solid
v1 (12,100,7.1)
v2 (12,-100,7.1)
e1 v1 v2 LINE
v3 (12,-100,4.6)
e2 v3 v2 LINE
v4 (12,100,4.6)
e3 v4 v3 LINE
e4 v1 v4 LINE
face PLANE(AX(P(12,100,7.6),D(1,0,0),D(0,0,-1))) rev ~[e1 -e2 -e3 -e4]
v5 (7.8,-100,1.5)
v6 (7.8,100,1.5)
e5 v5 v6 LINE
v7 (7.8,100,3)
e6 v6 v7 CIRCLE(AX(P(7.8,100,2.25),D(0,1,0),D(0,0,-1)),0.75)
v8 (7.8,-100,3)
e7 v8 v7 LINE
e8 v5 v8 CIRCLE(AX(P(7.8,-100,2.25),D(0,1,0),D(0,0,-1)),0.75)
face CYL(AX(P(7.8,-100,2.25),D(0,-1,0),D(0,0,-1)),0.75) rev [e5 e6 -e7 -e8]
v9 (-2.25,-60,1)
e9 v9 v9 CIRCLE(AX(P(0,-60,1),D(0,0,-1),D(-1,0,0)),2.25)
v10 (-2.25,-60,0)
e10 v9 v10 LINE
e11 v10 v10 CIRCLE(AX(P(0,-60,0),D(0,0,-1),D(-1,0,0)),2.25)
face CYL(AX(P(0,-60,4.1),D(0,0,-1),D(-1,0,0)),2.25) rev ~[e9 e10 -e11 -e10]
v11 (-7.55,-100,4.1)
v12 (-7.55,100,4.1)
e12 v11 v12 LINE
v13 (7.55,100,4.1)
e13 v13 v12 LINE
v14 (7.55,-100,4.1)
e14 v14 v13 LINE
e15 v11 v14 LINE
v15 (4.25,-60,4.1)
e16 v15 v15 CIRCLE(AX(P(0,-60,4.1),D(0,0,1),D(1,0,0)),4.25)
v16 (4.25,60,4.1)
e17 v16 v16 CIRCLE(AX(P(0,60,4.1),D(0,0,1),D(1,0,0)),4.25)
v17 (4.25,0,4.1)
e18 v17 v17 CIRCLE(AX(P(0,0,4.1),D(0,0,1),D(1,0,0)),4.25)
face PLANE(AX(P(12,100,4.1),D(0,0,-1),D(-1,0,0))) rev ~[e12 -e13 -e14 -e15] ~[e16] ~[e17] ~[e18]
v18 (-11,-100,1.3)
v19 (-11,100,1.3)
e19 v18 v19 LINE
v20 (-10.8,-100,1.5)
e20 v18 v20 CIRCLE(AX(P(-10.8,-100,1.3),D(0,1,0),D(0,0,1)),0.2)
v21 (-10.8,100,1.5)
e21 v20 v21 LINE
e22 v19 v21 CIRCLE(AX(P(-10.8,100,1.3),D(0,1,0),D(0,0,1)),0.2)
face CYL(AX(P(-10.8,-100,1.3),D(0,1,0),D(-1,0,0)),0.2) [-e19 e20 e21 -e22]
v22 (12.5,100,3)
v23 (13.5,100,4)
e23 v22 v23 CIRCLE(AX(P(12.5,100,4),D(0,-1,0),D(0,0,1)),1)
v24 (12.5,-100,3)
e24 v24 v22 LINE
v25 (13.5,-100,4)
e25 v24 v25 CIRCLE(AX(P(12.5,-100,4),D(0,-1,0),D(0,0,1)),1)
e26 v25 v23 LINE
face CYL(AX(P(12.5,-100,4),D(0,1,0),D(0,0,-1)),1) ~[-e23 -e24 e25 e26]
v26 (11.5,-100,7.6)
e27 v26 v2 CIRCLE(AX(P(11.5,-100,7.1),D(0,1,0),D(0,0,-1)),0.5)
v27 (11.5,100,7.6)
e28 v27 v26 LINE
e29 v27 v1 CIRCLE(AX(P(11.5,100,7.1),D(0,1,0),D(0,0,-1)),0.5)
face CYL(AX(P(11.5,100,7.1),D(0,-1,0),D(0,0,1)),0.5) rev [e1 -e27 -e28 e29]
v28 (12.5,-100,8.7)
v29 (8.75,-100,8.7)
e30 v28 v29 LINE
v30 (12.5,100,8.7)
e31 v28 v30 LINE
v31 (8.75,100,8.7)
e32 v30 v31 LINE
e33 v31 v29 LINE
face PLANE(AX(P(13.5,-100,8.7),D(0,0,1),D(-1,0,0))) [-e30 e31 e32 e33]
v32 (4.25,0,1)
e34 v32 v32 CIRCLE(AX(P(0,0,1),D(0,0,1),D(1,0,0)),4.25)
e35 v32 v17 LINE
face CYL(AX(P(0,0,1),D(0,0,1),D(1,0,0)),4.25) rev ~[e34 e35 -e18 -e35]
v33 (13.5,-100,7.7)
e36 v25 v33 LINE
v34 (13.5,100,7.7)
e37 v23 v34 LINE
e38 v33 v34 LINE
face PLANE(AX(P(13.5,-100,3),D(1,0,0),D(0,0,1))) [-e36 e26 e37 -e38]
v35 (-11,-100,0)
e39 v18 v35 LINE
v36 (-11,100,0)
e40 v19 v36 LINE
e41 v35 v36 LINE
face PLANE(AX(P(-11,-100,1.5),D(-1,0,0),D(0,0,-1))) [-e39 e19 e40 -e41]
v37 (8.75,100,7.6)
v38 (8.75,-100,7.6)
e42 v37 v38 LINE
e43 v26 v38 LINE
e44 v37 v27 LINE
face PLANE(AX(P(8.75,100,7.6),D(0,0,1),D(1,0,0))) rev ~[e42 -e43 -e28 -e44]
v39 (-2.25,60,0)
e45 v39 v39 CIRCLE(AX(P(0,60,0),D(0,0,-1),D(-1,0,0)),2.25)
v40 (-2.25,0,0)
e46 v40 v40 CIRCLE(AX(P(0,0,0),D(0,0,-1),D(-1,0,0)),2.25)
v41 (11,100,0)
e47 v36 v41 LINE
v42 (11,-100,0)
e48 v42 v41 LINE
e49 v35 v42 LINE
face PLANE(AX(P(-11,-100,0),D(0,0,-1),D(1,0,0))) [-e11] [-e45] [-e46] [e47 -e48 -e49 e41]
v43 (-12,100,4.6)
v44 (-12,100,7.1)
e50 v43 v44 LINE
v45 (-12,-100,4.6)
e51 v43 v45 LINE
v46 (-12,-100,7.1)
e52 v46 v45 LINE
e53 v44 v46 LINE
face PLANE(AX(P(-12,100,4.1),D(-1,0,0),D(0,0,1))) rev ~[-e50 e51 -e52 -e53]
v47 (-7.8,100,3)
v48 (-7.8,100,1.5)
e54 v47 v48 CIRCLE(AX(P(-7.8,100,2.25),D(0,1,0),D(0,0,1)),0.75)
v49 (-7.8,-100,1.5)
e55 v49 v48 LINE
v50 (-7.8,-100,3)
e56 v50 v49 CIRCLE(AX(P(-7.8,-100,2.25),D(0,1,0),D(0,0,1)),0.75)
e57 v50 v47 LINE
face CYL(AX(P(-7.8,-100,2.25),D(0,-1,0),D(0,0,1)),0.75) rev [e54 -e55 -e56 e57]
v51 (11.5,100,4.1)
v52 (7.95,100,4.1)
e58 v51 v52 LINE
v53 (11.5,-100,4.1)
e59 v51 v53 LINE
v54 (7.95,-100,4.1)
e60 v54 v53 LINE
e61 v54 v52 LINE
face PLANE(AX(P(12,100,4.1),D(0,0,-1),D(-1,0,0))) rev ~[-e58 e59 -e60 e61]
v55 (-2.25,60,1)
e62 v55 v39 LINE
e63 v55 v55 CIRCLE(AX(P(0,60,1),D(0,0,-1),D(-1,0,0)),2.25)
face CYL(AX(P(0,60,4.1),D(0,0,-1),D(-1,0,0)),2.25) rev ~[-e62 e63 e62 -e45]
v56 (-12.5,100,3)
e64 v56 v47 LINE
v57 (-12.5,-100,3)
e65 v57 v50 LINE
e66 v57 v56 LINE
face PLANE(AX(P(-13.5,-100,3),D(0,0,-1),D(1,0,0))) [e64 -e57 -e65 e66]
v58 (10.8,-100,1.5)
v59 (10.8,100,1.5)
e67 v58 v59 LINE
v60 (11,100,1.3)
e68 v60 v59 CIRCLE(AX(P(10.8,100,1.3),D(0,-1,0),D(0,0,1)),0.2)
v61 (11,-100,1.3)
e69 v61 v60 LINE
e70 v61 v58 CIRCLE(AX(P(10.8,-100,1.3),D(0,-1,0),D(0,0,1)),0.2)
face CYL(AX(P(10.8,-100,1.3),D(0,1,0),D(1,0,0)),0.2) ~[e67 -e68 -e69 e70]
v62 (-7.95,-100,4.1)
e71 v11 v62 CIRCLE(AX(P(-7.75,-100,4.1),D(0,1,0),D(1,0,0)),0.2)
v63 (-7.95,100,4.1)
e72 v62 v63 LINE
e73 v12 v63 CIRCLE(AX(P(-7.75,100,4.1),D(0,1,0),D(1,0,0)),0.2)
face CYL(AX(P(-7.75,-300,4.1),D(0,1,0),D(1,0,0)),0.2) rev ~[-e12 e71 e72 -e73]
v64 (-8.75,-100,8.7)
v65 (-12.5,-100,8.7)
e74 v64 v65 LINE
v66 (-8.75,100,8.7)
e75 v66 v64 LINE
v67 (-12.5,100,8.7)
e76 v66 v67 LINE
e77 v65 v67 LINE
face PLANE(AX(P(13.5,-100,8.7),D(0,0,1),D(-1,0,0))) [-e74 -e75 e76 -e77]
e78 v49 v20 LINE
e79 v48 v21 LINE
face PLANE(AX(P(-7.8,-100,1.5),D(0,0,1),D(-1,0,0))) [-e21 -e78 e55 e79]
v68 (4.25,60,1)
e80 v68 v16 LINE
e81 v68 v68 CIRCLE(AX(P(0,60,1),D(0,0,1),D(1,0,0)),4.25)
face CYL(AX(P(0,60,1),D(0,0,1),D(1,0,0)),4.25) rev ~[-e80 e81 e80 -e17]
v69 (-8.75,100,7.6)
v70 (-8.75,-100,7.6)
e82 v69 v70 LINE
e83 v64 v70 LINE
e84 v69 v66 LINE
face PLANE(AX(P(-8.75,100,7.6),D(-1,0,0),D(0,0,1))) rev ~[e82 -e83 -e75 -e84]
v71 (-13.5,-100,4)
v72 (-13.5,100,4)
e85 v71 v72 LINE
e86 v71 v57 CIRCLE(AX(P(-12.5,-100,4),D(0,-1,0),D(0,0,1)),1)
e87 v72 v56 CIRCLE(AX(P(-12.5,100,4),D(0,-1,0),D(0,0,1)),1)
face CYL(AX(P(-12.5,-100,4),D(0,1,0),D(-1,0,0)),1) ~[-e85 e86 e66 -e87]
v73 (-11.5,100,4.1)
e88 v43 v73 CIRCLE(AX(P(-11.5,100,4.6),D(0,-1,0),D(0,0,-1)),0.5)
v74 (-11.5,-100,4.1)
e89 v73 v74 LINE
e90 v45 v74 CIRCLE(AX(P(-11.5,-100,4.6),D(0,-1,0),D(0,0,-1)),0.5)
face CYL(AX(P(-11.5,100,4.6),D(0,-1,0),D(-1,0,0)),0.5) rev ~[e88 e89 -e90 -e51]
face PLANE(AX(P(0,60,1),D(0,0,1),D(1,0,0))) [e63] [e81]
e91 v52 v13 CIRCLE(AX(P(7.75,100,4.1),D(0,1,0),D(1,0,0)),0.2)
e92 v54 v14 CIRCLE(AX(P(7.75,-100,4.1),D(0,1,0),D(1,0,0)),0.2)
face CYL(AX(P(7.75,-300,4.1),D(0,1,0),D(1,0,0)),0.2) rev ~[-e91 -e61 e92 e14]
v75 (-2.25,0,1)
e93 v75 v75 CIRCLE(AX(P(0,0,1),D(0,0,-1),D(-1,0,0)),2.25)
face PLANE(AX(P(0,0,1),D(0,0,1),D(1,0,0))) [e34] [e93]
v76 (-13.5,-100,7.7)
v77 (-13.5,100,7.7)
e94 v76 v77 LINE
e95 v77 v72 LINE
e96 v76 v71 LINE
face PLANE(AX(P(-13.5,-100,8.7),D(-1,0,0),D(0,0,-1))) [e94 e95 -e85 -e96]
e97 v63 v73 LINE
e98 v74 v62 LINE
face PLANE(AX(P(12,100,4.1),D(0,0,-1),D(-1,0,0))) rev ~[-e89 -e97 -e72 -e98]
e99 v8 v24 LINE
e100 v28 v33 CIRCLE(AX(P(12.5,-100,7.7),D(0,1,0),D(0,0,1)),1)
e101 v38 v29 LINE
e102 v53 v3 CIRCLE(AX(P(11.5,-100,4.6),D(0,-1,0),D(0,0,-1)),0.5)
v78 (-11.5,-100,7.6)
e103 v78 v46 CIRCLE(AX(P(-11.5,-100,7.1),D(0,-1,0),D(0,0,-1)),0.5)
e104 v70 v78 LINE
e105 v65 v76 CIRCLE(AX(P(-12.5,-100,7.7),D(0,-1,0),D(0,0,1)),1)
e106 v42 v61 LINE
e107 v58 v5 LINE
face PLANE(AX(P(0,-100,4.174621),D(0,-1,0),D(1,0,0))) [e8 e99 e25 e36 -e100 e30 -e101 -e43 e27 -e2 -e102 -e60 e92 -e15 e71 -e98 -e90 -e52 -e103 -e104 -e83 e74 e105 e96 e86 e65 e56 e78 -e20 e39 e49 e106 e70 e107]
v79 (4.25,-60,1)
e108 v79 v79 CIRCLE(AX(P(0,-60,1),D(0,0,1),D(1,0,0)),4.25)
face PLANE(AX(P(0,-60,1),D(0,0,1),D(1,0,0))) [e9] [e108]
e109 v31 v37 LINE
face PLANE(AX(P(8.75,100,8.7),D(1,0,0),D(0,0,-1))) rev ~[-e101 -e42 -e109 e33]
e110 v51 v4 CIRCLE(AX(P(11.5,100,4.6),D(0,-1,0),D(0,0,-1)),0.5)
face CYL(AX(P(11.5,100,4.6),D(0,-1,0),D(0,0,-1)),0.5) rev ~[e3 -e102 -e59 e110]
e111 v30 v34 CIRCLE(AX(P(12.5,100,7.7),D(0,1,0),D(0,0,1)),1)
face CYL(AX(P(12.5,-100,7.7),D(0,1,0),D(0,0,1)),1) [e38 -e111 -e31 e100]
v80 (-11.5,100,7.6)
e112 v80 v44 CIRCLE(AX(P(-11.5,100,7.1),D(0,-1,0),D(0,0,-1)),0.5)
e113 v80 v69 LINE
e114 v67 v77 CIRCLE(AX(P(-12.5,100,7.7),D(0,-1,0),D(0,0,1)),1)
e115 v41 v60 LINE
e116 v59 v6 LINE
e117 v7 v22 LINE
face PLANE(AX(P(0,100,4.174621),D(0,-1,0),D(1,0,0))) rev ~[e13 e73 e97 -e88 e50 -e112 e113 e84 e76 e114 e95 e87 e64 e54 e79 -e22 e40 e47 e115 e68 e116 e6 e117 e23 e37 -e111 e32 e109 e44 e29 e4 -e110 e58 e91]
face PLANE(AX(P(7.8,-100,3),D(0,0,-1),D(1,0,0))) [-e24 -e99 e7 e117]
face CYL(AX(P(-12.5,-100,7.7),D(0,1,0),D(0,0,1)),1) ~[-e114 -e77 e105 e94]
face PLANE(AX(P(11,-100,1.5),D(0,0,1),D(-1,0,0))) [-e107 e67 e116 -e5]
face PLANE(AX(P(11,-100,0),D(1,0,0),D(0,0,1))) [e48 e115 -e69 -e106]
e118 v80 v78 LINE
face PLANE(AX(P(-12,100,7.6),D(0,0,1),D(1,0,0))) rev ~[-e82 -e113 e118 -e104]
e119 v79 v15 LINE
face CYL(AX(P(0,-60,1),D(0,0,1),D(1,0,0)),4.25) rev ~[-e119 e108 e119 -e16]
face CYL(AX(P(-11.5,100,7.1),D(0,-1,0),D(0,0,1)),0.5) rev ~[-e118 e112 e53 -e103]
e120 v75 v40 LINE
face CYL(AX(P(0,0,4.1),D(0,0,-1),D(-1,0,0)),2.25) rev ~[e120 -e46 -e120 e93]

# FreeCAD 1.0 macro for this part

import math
import FreeCAD as App
import Part
import Sketcher
from FreeCAD import Vector
Q = App.Units.Quantity


def edges_at(feature, points):
    """Names of the edges that pass closest to the given points."""
    edges = feature.Shape.Edges
    near = lambda p: min(range(len(edges)), key=lambda i: edges[i].distToShape(Part.Vertex(*p))[0])
    return sorted({f"Edge{near(p) + 1}" for p in points})

doc = App.newDocument("Part")
body = doc.addObject("PartDesign::Body", "Body")

# Sketch on XZ plane
sketch1 = body.newObject("Sketcher::SketchObject", "Sketch")
sketch1.AttachmentSupport = (doc.getObject("XZ_Plane"), [""])
sketch1.MapMode = "FlatFace"
sketch1.AttachmentOffset = App.Placement(Vector(0, 0, 100), App.Rotation())
sketch1.addGeometry([
    Part.LineSegment(Vector(-11, 0, 0), Vector(11, 0, 0)),  # 0
    Part.LineSegment(Vector(11, 0, 0), Vector(11, 1.5, 0)),  # 1
    Part.LineSegment(Vector(11, 1.5, 0), Vector(7.8, 1.5, 0)),  # 2
    Part.ArcOfCircle(Part.Circle(Vector(7.8, 2.2, 0), Vector(0, 0, 1), 0.8), math.radians(90), math.radians(270)),  # 3
    Part.LineSegment(Vector(7.8, 3, 0), Vector(13.5, 3, 0)),  # 4
    Part.LineSegment(Vector(13.5, 3, 0), Vector(13.5, 8.7, 0)),  # 5
    Part.LineSegment(Vector(13.5, 8.7, 0), Vector(-13.5, 8.7, 0)),  # 6
    Part.LineSegment(Vector(-13.5, 8.7, 0), Vector(-13.5, 3, 0)),  # 7
    Part.LineSegment(Vector(-13.5, 3, 0), Vector(-7.8, 3, 0)),  # 8
    Part.ArcOfCircle(Part.Circle(Vector(-7.8, 2.2, 0), Vector(0, 0, 1), 0.8), math.radians(-90), math.radians(90)),  # 9
    Part.LineSegment(Vector(-7.8, 1.5, 0), Vector(-11, 1.5, 0)),  # 10
    Part.LineSegment(Vector(-11, 1.5, 0), Vector(-11, 0, 0)),  # 11
], False)
sketch1.addConstraint([
    Sketcher.Constraint("Coincident", 0, 2, 1, 1),
    Sketcher.Constraint("Coincident", 1, 2, 2, 1),
    Sketcher.Constraint("Tangent", 2, 2, 3, 2),
    Sketcher.Constraint("Tangent", 3, 1, 4, 1),
    Sketcher.Constraint("Coincident", 4, 2, 5, 1),
    Sketcher.Constraint("Coincident", 5, 2, 6, 1),
    Sketcher.Constraint("Coincident", 6, 2, 7, 1),
    Sketcher.Constraint("Coincident", 7, 2, 8, 1),
    Sketcher.Constraint("Tangent", 8, 2, 9, 2),
    Sketcher.Constraint("Tangent", 9, 1, 10, 1),
    Sketcher.Constraint("Coincident", 10, 2, 11, 1),
    Sketcher.Constraint("Coincident", 11, 2, 0, 1),
    Sketcher.Constraint("Horizontal", 0),
    Sketcher.Constraint("Vertical", 1),
    Sketcher.Constraint("Horizontal", 2),
    Sketcher.Constraint("Horizontal", 4),
    Sketcher.Constraint("Vertical", 5),
    Sketcher.Constraint("Horizontal", 6),
    Sketcher.Constraint("Vertical", 7),
    Sketcher.Constraint("Horizontal", 8),
    Sketcher.Constraint("Horizontal", 10),
    Sketcher.Constraint("Vertical", 11),
    Sketcher.Constraint("Equal", 3, 9),
    Sketcher.Constraint("Symmetric", 0, 2, 11, 2, -1, 1),
    Sketcher.Constraint("Symmetric", 3, 3, 9, 3, -2),
    Sketcher.Constraint("Equal", 4, 8),
    Sketcher.Constraint("Equal", 8, 5),
    Sketcher.Constraint("DistanceX", 0, 1, 0, 2, Q("22 mm")),
    Sketcher.Constraint("DistanceX", 6, 2, 6, 1, Q("27 mm")),
    Sketcher.Constraint("Radius", 3, Q("0.75 mm")),
    Sketcher.Constraint("DistanceX", 2, 2, 2, 1, Q("3.2 mm")),
    Sketcher.Constraint("DistanceY", 1, 1, 1, 2, Q("1.5 mm")),
])
pad1 = body.newObject("PartDesign::Pad", "Pad")
pad1.Profile = sketch1
pad1.Length = 200
pad1.Reversed = True

# Sketch on XZ plane
sketch2 = body.newObject("Sketcher::SketchObject", "Sketch001")
sketch2.AttachmentSupport = (doc.getObject("XZ_Plane"), [""])
sketch2.MapMode = "FlatFace"
sketch2.AttachmentOffset = App.Placement(Vector(0, 0, -100), App.Rotation())
sketch2.addGeometry([
    Part.LineSegment(Vector(-8.8, 8.7, 0), Vector(8.8, 8.7, 0)),  # 0
    Part.LineSegment(Vector(8.8, 8.7, 0), Vector(8.8, 7.6, 0)),  # 1
    Part.LineSegment(Vector(8.8, 7.6, 0), Vector(12, 7.6, 0)),  # 2
    Part.LineSegment(Vector(12, 7.6, 0), Vector(12, 4.1, 0)),  # 3
    Part.LineSegment(Vector(12, 4.1, 0), Vector(-12, 4.1, 0)),  # 4
    Part.LineSegment(Vector(-12, 4.1, 0), Vector(-12, 7.6, 0)),  # 5
    Part.LineSegment(Vector(-12, 7.6, 0), Vector(-8.8, 7.6, 0)),  # 6
    Part.LineSegment(Vector(-8.8, 7.6, 0), Vector(-8.8, 8.7, 0)),  # 7
], False)
sketch2.addConstraint([
    Sketcher.Constraint("Coincident", 0, 2, 1, 1),
    Sketcher.Constraint("Coincident", 1, 2, 2, 1),
    Sketcher.Constraint("Coincident", 2, 2, 3, 1),
    Sketcher.Constraint("Coincident", 3, 2, 4, 1),
    Sketcher.Constraint("Coincident", 4, 2, 5, 1),
    Sketcher.Constraint("Coincident", 5, 2, 6, 1),
    Sketcher.Constraint("Coincident", 6, 2, 7, 1),
    Sketcher.Constraint("Coincident", 7, 2, 0, 1),
    Sketcher.Constraint("Horizontal", 0),
    Sketcher.Constraint("Vertical", 1),
    Sketcher.Constraint("Horizontal", 2),
    Sketcher.Constraint("Vertical", 3),
    Sketcher.Constraint("Horizontal", 4),
    Sketcher.Constraint("Vertical", 5),
    Sketcher.Constraint("Horizontal", 6),
    Sketcher.Constraint("Vertical", 7),
    Sketcher.Constraint("Symmetric", 2, 2, 5, 2, -2),
    Sketcher.Constraint("Equal", 2, 6),
    Sketcher.Constraint("DistanceX", 4, 2, 4, 1, Q("24 mm")),
    Sketcher.Constraint("DistanceX", 0, 1, 0, 2, Q("17.5 mm")),
    Sketcher.Constraint("DistanceY", 1, 2, 1, 1, Q("1.1 mm")),
    Sketcher.Constraint("DistanceY", 3, 2, 3, 1, Q("3.5 mm")),
    Sketcher.Constraint("DistanceY", -1, 1, 0, 2, Q("8.7 mm")),
])
pocket1 = body.newObject("PartDesign::Pocket", "Pocket")
pocket1.Profile = sketch2
pocket1.Type = "ThroughAll"
pocket1.Reversed = True

# Sketch on XZ plane
sketch3 = body.newObject("Sketcher::SketchObject", "Sketch002")
sketch3.AttachmentSupport = (doc.getObject("XZ_Plane"), [""])
sketch3.MapMode = "FlatFace"
sketch3.AttachmentOffset = App.Placement(Vector(0, 0, 100), App.Rotation())
sketch3.addGeometry([
    Part.Circle(Vector(7.75, 4.1, 0), Vector(0, 0, 1), 0.2),
    Part.Circle(Vector(-7.75, 4.1, 0), Vector(0, 0, 1), 0.2),
], False)
sketch3.addConstraint([
    Sketcher.Constraint("Equal", 0, 1),
    Sketcher.Constraint("Symmetric", 0, 3, 1, 3, -2),
    Sketcher.Constraint("Diameter", 0, Q("0.4 mm")),
    Sketcher.Constraint("DistanceY", -1, 1, 0, 3, Q("4.1 mm")),
    Sketcher.Constraint("DistanceX", 1, 3, 0, 3, Q("15.5 mm")),
])
doc.recompute()
hole = body.newObject("PartDesign::Hole", "Hole")
hole.Profile = sketch3
hole.ThreadType = "None"
hole.Diameter = 0.4
hole.DepthType = "Dimension"
hole.Depth = 200
hole.DrillPoint = "Flat"

# Sketch on XY plane
sketch4 = body.newObject("Sketcher::SketchObject", "Sketch003")
sketch4.AttachmentSupport = (doc.getObject("XY_Plane"), [""])
sketch4.MapMode = "FlatFace"
sketch4.AttachmentOffset = App.Placement(Vector(0, 0, 4.1), App.Rotation())
sketch4.addGeometry([
    Part.Circle(Vector(0, -60, 0), Vector(0, 0, 1), 2.2),
    Part.Circle(Vector(0, 0, 0), Vector(0, 0, 1), 2.2),
    Part.Circle(Vector(0, 60, 0), Vector(0, 0, 1), 2.2),
], False)
sketch4.addConstraint([
    Sketcher.Constraint("Coincident", 1, 3, -1, 1),
    Sketcher.Constraint("Equal", 0, 1),
    Sketcher.Constraint("Equal", 1, 2),
    Sketcher.Constraint("Symmetric", 0, 3, 2, 3, -1, 1),
    Sketcher.Constraint("PointOnObject", 0, 3, -2),
    Sketcher.Constraint("Diameter", 0, Q("4.5 mm")),
    Sketcher.Constraint("DistanceY", 0, 3, -1, 1, Q("60 mm")),
])
doc.recompute()
hole2 = body.newObject("PartDesign::Hole", "Hole001")
hole2.Profile = sketch4
hole2.ThreadType = "None"
hole2.Diameter = 4.5
hole2.DepthType = "ThroughAll"
hole2.HoleCutType = "Counterbore"
hole2.HoleCutDiameter = 8.5
hole2.HoleCutDepth = 3.1
doc.recompute()

fillet = body.newObject("PartDesign::Fillet", "Fillet")
fillet.Base = (hole2, edges_at(hole2, [(-11, 0, 1.5), (11, 0, 1.5)]))
fillet.Radius = 0.2
doc.recompute()

fillet2 = body.newObject("PartDesign::Fillet", "Fillet001")
fillet2.Base = (fillet, edges_at(fillet, [
    (-12, 0, 7.6),
    (-12, 0, 4.1),
    (12, 0, 4.1),
    (12, 0, 7.6),
]))
fillet2.Radius = 0.5
doc.recompute()

fillet3 = body.newObject("PartDesign::Fillet", "Fillet002")
fillet3.Base = (fillet2, edges_at(fillet2, [
    (-13.5, 0, 3),
    (-13.5, 0, 8.7),
    (13.5, 0, 8.7),
    (13.5, 0, 3),
]))
fillet3.Radius = 1

doc.recompute()
